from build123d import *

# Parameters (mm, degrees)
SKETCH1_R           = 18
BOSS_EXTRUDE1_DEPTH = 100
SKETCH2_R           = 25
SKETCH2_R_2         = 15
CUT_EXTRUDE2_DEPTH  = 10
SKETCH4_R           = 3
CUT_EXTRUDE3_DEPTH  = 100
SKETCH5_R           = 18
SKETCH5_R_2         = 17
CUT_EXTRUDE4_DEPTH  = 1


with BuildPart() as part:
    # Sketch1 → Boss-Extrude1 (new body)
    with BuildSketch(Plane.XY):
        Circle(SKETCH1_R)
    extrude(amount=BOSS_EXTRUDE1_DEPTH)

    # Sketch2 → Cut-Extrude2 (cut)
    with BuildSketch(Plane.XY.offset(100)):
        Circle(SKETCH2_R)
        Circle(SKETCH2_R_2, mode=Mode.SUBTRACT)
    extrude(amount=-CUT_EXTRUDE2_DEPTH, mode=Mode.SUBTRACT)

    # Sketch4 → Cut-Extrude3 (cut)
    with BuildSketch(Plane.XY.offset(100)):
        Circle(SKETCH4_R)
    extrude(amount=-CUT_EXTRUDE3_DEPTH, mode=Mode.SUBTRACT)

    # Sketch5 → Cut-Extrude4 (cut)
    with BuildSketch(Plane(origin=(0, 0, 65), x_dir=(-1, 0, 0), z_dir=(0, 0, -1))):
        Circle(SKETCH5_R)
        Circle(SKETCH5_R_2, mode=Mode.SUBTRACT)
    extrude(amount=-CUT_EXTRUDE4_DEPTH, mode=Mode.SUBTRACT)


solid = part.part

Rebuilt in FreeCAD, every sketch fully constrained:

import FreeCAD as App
import Part
import Sketcher
Q = App.Units.Quantity

doc = App.newDocument("Part")
body = doc.addObject("PartDesign::Body", "Body")

# Sketch on XY plane
sketch1 = body.newObject("Sketcher::SketchObject", "Sketch")
sketch1.AttachmentSupport = (doc.getObject("XY_Plane"), [""])
sketch1.MapMode = "FlatFace"
sketch1.addGeometry(Part.Circle(App.Vector(0, 0, 0), App.Vector(0, 0, 1), 18), False)
sketch1.addConstraint([
    Sketcher.Constraint("Coincident", 0, 3, -1, 1),
    Sketcher.Constraint("Diameter", 0, Q("36 mm")),
])
pad1 = body.newObject("PartDesign::Pad", "Pad")
pad1.Profile = sketch1
pad1.Length = 100

# Sketch on XY plane
sketch2 = body.newObject("Sketcher::SketchObject", "Sketch001")
sketch2.AttachmentSupport = (doc.getObject("XY_Plane"), [""])
sketch2.MapMode = "FlatFace"
sketch2.AttachmentOffset = App.Placement(App.Vector(0, 0, 100), App.Rotation())
sketch2.addGeometry([
    Part.Circle(App.Vector(0, 0, 0), App.Vector(0, 0, 1), 25),
    Part.Circle(App.Vector(0, 0, 0), App.Vector(0, 0, 1), 15),
], False)
sketch2.addConstraint([
    Sketcher.Constraint("Coincident", 0, 3, -1, 1),
    Sketcher.Constraint("Coincident", 1, 3, -1, 1),
    Sketcher.Constraint("Diameter", 0, Q("50 mm")),
    Sketcher.Constraint("Diameter", 1, Q("30 mm")),
])
pocket1 = body.newObject("PartDesign::Pocket", "Pocket")
pocket1.Profile = sketch2
pocket1.Length = 10

# Sketch on XY plane
sketch3 = body.newObject("Sketcher::SketchObject", "Sketch002")
sketch3.AttachmentSupport = (doc.getObject("XY_Plane"), [""])
sketch3.MapMode = "FlatFace"
sketch3.AttachmentOffset = App.Placement(App.Vector(0, 0, 100), App.Rotation())
sketch3.addGeometry(Part.Circle(App.Vector(0, 0, 0), App.Vector(0, 0, 1), 3), False)
sketch3.addConstraint([
    Sketcher.Constraint("Coincident", 0, 3, -1, 1),
    Sketcher.Constraint("Diameter", 0, Q("6 mm")),
])
pocket2 = body.newObject("PartDesign::Pocket", "Pocket001")
pocket2.Profile = sketch3
pocket2.Length = 100

# Sketch on XY plane
sketch4 = body.newObject("Sketcher::SketchObject", "Sketch003")
sketch4.AttachmentSupport = (doc.getObject("XY_Plane"), [""])
sketch4.MapMode = "FlatFace"
sketch4.AttachmentOffset = App.Placement(App.Vector(0, 0, 65), App.Rotation())
sketch4.addGeometry([
    Part.Circle(App.Vector(0, 0, 0), App.Vector(0, 0, 1), 18),
    Part.Circle(App.Vector(0, 0, 0), App.Vector(0, 0, 1), 17),
], False)
sketch4.addConstraint([
    Sketcher.Constraint("Coincident", 0, 3, -1, 1),
    Sketcher.Constraint("Coincident", 1, 3, -1, 1),
    Sketcher.Constraint("Diameter", 0, Q("36 mm")),
    Sketcher.Constraint("Diameter", 1, Q("34 mm")),
])
pocket3 = body.newObject("PartDesign::Pocket", "Pocket002")
pocket3.Profile = sketch4
pocket3.Length = 1
pocket3.Reversed = True

doc.recompute()
